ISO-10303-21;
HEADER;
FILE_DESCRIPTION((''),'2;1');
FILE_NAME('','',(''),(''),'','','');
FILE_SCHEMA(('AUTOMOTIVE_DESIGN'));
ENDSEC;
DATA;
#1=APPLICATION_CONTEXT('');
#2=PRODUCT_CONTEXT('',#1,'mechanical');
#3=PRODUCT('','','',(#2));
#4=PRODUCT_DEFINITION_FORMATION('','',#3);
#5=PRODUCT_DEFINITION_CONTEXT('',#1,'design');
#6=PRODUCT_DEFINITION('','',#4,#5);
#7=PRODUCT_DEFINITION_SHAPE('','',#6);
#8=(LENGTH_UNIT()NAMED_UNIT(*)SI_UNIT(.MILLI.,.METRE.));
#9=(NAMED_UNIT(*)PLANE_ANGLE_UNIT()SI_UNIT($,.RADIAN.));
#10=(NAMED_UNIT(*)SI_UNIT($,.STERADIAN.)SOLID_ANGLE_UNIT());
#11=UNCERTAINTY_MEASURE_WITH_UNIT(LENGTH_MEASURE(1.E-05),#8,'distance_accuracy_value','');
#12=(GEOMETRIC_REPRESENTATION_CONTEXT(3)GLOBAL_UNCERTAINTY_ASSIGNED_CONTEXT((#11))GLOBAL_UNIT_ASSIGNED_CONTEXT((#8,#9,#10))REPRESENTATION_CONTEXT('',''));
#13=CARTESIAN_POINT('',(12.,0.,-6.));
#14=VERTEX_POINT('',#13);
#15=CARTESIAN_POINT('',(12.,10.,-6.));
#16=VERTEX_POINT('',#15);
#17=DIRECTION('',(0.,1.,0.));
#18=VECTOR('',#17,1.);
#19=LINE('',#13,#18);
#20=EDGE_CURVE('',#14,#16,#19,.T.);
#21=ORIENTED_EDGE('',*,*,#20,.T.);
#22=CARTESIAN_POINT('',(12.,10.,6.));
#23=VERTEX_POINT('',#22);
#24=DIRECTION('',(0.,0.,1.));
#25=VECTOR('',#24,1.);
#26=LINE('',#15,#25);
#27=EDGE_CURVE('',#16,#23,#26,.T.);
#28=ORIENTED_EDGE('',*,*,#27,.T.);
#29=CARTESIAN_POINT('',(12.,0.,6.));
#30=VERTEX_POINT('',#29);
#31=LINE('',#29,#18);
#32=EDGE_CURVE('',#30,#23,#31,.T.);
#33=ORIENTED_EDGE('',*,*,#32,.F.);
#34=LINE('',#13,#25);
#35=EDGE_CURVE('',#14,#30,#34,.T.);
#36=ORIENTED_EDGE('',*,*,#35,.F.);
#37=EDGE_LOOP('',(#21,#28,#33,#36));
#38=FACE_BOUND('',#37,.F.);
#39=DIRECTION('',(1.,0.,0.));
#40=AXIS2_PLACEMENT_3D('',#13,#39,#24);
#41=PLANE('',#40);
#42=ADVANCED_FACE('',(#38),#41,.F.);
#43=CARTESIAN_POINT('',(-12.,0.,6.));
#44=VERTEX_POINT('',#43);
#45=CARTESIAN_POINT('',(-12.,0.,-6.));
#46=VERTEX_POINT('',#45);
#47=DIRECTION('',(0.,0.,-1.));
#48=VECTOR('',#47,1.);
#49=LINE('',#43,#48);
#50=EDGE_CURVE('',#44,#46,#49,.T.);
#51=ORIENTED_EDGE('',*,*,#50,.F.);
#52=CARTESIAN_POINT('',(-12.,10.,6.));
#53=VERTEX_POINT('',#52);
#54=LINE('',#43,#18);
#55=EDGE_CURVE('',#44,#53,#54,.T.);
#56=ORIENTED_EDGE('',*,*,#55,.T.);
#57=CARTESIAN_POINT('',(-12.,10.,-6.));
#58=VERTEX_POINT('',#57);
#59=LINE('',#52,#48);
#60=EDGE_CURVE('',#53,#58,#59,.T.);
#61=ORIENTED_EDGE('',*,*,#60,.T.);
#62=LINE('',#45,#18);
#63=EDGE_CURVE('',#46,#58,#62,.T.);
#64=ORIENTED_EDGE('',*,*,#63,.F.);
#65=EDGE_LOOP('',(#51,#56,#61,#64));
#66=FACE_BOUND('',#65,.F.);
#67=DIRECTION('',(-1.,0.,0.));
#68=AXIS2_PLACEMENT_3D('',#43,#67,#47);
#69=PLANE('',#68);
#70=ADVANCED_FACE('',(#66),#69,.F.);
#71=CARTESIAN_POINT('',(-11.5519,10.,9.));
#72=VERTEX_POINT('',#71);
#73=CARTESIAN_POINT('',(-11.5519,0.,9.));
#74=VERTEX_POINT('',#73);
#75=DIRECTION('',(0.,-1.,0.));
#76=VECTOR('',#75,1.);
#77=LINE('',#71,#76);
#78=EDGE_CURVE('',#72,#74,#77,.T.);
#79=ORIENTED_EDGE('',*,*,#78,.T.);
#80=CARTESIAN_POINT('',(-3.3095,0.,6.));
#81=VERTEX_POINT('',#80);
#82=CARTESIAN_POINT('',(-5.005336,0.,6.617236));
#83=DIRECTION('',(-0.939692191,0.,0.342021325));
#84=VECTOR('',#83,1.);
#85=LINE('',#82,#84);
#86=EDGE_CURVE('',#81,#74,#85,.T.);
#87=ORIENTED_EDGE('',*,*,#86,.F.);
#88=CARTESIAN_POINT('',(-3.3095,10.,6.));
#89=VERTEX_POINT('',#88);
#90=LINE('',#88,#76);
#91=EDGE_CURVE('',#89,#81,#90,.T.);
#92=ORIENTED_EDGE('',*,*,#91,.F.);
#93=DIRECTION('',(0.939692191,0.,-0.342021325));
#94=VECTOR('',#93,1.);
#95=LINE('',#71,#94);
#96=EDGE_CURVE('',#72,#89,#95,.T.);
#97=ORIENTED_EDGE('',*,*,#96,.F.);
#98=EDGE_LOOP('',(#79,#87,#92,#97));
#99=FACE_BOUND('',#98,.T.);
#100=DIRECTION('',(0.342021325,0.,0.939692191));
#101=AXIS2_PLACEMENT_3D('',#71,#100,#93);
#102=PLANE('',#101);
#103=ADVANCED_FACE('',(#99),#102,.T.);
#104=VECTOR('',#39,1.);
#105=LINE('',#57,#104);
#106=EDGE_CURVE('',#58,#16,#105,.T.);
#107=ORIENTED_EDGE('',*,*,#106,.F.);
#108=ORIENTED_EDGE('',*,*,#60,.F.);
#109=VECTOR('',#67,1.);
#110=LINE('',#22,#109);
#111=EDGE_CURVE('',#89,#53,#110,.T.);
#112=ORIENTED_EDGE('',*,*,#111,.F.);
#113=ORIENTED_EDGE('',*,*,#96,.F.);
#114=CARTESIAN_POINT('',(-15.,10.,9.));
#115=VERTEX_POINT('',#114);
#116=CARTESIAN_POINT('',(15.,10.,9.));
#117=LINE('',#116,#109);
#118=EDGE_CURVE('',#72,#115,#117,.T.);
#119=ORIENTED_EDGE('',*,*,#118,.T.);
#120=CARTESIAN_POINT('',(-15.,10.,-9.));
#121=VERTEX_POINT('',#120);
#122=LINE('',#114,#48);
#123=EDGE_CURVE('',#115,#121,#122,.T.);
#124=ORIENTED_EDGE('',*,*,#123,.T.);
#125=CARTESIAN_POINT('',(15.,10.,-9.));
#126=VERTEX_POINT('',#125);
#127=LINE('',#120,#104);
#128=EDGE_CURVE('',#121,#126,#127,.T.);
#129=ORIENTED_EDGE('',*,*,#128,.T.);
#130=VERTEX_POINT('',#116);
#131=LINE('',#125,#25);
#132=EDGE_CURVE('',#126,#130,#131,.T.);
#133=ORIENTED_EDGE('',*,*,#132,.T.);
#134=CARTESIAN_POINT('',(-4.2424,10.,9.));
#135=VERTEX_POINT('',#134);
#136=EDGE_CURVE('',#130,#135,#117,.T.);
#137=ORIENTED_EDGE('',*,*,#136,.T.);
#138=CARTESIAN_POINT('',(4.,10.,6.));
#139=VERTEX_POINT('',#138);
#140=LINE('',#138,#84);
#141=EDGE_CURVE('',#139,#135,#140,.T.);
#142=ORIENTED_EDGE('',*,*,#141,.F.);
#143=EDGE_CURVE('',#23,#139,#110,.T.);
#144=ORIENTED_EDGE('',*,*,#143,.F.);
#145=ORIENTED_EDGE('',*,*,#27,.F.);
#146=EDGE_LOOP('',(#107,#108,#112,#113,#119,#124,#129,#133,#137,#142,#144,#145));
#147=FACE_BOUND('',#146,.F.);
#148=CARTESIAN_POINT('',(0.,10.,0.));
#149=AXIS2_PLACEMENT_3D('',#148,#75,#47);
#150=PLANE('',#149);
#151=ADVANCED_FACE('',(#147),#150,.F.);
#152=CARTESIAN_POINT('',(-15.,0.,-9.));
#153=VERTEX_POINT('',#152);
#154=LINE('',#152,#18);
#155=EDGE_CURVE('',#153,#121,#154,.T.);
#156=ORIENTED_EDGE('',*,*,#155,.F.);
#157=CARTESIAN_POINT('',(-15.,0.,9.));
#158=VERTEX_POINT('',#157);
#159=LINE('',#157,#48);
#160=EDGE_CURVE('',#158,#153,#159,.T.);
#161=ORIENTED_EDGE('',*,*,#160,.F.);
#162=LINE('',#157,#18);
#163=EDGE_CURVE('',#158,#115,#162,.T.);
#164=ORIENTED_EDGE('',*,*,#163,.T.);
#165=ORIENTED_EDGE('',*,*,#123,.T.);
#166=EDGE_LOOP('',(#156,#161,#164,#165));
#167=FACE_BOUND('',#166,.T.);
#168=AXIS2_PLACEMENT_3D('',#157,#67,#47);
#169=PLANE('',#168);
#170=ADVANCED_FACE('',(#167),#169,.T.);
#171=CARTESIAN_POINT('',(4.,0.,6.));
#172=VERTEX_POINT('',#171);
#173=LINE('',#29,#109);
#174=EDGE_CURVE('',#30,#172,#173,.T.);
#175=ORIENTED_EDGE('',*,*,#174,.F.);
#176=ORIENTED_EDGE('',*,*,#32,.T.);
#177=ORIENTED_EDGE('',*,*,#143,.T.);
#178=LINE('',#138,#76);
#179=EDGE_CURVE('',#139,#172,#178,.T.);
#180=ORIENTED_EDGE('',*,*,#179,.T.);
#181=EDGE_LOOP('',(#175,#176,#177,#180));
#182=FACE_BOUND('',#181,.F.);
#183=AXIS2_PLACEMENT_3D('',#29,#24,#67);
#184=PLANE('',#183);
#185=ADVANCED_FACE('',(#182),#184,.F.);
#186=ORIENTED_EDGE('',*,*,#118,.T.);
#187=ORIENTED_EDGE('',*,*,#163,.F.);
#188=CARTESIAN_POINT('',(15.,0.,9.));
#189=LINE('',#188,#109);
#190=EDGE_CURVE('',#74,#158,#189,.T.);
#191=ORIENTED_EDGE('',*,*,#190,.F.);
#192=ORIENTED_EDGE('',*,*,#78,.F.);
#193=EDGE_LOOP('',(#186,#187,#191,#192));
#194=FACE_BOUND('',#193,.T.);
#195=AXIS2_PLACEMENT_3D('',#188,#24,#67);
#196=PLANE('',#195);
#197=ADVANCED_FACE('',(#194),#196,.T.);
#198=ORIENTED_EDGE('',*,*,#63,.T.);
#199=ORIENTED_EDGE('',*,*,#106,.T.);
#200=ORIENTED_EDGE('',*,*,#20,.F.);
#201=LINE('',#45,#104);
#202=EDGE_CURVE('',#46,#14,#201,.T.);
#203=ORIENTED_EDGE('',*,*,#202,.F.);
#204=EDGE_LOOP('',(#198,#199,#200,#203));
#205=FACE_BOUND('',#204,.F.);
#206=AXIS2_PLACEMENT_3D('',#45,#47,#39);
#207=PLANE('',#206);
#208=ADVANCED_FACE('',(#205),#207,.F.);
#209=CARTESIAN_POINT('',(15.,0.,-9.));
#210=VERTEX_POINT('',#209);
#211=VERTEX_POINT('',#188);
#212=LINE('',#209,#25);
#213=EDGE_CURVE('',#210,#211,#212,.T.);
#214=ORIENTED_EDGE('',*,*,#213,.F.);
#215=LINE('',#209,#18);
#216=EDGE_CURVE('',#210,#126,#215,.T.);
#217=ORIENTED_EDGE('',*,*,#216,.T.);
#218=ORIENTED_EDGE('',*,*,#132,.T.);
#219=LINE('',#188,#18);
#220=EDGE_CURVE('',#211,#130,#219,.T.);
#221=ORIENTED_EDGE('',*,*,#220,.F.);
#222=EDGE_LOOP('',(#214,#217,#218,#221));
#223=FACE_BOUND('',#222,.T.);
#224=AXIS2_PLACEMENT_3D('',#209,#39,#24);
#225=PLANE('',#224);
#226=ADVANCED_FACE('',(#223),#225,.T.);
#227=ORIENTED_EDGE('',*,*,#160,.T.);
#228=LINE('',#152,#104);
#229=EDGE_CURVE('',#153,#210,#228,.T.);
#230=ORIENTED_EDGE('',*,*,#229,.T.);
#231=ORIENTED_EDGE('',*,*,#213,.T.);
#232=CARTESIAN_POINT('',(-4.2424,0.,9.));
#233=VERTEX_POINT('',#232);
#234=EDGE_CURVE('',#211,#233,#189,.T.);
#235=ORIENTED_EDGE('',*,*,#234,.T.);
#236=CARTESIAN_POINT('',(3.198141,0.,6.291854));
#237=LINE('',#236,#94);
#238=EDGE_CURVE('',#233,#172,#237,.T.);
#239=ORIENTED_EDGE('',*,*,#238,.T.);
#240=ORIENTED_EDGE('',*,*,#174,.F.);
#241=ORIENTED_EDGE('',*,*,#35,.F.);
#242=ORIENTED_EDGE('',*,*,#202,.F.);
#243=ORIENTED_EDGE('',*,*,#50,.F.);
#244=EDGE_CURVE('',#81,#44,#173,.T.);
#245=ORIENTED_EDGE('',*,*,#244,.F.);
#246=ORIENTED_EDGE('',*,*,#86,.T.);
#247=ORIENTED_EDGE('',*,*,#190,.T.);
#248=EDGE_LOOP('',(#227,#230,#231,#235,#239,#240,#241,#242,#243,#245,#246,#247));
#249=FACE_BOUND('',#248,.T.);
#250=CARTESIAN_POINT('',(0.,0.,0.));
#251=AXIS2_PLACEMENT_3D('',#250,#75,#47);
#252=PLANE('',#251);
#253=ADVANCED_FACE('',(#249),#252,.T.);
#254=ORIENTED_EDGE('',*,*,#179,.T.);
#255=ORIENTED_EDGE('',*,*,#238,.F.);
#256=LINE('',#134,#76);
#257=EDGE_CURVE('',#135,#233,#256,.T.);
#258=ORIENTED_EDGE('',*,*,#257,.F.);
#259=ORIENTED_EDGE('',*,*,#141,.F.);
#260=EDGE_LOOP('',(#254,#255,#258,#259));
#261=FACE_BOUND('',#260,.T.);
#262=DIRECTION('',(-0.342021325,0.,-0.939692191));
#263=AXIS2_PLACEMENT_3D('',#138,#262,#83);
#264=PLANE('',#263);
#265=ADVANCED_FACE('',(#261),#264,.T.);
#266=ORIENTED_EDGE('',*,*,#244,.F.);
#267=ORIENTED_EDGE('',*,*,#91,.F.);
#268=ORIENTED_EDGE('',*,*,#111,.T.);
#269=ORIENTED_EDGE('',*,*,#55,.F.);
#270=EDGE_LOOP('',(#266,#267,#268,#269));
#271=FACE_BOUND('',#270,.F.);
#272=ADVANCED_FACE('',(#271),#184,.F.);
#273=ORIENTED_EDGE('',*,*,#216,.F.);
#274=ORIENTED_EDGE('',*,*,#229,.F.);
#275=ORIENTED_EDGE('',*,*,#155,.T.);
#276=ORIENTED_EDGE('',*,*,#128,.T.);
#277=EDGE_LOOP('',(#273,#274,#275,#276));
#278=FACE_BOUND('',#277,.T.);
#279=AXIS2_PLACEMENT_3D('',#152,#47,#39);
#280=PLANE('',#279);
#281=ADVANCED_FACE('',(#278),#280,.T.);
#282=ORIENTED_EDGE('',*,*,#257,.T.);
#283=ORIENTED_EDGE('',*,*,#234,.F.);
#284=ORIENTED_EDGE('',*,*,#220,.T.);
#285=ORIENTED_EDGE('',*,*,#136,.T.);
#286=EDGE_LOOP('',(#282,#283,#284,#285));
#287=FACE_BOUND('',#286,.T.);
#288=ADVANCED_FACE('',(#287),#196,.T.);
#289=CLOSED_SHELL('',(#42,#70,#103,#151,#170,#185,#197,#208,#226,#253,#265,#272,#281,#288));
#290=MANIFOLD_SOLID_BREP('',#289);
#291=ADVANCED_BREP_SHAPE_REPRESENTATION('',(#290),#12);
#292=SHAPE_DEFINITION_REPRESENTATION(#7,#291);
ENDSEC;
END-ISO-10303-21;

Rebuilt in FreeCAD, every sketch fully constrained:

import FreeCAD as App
import Part
import Sketcher

V = App.Vector
Q = App.Units.Quantity


def add_polygon(sketch, points):
    """Adds a closed chain of lines whose ends are joined by coincident constraints."""
    first, n = sketch.GeometryCount, len(points)
    for a, b in zip(points, points[1:] + points[:1]):
        sketch.addGeometry(Part.LineSegment(App.Vector(*a, 0), App.Vector(*b, 0)), False)
    for i in range(n):
        sketch.addConstraint(Sketcher.Constraint("Coincident", first + i, 2, first + (i + 1) % n, 1))

doc = App.newDocument("Part")
body = doc.addObject("PartDesign::Body", "Body")

sketch1 = body.newObject("Sketcher::SketchObject", "Sketch")
sketch1.AttachmentSupport = (doc.getObject("XZ_Plane"), [""])
sketch1.MapMode = "FlatFace"
add_polygon(sketch1, [(-15, 9), (-15, -9), (15, -9), (15, 9)])
add_polygon(sketch1, [(12, -6), (-12, -6), (-12, 6), (12, 6)])
sketch1.addConstraint(Sketcher.Constraint("Vertical", 0))
sketch1.addConstraint(Sketcher.Constraint("Horizontal", 1))
sketch1.addConstraint(Sketcher.Constraint("Vertical", 2))
sketch1.addConstraint(Sketcher.Constraint("Horizontal", 3))
sketch1.addConstraint(Sketcher.Constraint("Horizontal", 4))
sketch1.addConstraint(Sketcher.Constraint("Vertical", 5))
sketch1.addConstraint(Sketcher.Constraint("Horizontal", 6))
sketch1.addConstraint(Sketcher.Constraint("Vertical", 7))
sketch1.addConstraint(Sketcher.Constraint("Symmetric", 0, 2, 2, 2, -1, 1))
sketch1.addConstraint(Sketcher.Constraint("Symmetric", 4, 2, 6, 2, -1, 1))
sketch1.addConstraint(Sketcher.Constraint("DistanceY", 5, 1, 5, 2, Q("12 mm")))
sketch1.addConstraint(Sketcher.Constraint("DistanceX", 4, 2, -1, 1, Q("12 mm")))
sketch1.addConstraint(Sketcher.Constraint("DistanceX", 1, 1, 1, 2, Q("30 mm")))
sketch1.addConstraint(Sketcher.Constraint("DistanceY", 0, 2, 0, 1, Q("18 mm")))
pad1 = body.newObject("PartDesign::Pad", "Pad")
pad1.Profile = sketch1
pad1.Length = 10
pad1.Reversed = True

sketch2 = body.newObject("Sketcher::SketchObject", "Sketch001")
sketch2.AttachmentSupport = (doc.getObject("XZ_Plane"), [""])
sketch2.MapMode = "FlatFace"
sketch2.AttachmentOffset = App.Placement(V(0, 0, -10), App.Rotation())
add_polygon(sketch2, [(-3.3095, 6), (-11.5519, 9), (-4.2424, 9), (4, 6)])
sketch2.addConstraint(Sketcher.Constraint("Horizontal", 1))
sketch2.addConstraint(Sketcher.Constraint("Horizontal", 3))
sketch2.addConstraint(Sketcher.Constraint("Parallel", 0, 2))
sketch2.addConstraint(Sketcher.Constraint("DistanceY", -1, 1, 2, 2, Q("6 mm")))
sketch2.addConstraint(Sketcher.Constraint("Angle", 0, Q("160 deg")))
sketch2.addConstraint(Sketcher.Constraint("DistanceY", -1, 1, 0, 2, Q("9 mm")))
sketch2.addConstraint(Sketcher.Constraint("DistanceX", -1, 1, 2, 2, Q("4 mm")))
sketch2.addConstraint(Sketcher.Constraint("DistanceX", 1, 1, 1, 2, Q("7.3095 mm")))
pocket1 = body.newObject("PartDesign::Pocket", "Pocket")
pocket1.Profile = sketch2
pocket1.Type = "ThroughAll"
pocket1.Reversed = True

doc.recompute()
